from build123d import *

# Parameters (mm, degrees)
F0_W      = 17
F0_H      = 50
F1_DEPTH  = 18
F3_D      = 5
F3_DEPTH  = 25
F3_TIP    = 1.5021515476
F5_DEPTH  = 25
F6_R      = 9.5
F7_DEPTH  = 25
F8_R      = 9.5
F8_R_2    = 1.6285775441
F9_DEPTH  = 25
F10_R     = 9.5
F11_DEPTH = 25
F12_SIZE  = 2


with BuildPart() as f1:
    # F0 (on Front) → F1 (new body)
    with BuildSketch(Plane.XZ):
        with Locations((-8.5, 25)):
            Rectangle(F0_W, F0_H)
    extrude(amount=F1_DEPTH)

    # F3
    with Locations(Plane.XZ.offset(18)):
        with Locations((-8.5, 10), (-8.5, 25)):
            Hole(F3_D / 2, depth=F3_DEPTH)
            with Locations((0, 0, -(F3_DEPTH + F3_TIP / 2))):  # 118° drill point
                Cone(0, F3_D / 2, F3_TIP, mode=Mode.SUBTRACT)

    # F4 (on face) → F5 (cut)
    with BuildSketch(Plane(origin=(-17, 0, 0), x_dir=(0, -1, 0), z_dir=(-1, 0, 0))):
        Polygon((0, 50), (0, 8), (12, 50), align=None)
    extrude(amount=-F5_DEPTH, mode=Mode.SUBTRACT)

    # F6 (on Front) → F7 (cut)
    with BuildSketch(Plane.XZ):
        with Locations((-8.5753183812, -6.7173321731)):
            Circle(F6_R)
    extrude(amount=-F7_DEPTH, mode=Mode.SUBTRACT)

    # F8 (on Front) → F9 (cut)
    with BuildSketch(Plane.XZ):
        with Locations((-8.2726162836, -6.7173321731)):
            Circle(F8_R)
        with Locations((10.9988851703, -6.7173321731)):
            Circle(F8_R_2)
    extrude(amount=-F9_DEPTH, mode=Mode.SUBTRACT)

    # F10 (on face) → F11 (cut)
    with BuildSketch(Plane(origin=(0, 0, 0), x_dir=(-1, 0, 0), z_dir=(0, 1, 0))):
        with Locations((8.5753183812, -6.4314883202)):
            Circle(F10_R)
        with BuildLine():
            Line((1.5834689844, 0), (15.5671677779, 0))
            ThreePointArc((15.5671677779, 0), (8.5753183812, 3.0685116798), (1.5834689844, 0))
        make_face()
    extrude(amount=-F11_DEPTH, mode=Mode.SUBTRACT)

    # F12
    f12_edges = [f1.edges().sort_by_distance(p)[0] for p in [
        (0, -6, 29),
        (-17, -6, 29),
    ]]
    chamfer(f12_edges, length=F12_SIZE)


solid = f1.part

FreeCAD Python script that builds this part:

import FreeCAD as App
import Part
import Sketcher

V = App.Vector
Q = App.Units.Quantity


def edges_at(feature, points):
    """Names of the edges that pass closest to the given points."""
    edges = feature.Shape.Edges
    near = lambda p: min(range(len(edges)), key=lambda i: edges[i].distToShape(Part.Vertex(*p))[0])
    return sorted({f"Edge{near(p) + 1}" for p in points})

doc = App.newDocument("Part")
body = doc.addObject("PartDesign::Body", "Body")

sketch1 = doc.addObject("Sketcher::SketchObject", "Sketch")
body.addObject(sketch1)
sketch1.AttachmentSupport = (doc.XZ_Plane, [""])
sketch1.MapMode = "FlatFace"
sketch1.addGeometry(Part.LineSegment(V(-17, 50, 0), V(-17, 0, 0)), False)
sketch1.addGeometry(Part.LineSegment(V(-17, 0, 0), V(0, 0, 0)), False)
sketch1.addGeometry(Part.LineSegment(V(0, 0, 0), V(0, 50, 0)), False)
sketch1.addGeometry(Part.LineSegment(V(0, 50, 0), V(-17, 50, 0)), False)
sketch1.addConstraint(Sketcher.Constraint("Coincident", 0, 2, 1, 1))
sketch1.addConstraint(Sketcher.Constraint("Coincident", 1, 2, 2, 1))
sketch1.addConstraint(Sketcher.Constraint("Coincident", 2, 2, 3, 1))
sketch1.addConstraint(Sketcher.Constraint("Coincident", 3, 2, 0, 1))
sketch1.addConstraint(Sketcher.Constraint("Vertical", 0))
sketch1.addConstraint(Sketcher.Constraint("Horizontal", 1))
sketch1.addConstraint(Sketcher.Constraint("Vertical", 2))
sketch1.addConstraint(Sketcher.Constraint("Horizontal", 3))
sketch1.addConstraint(Sketcher.Constraint("Coincident", 1, 2, -1, 1))
sketch1.addConstraint(Sketcher.Constraint("DistanceX", 1, 1, 1, 2, Q("17 mm")))
sketch1.addConstraint(Sketcher.Constraint("DistanceY", 0, 2, 0, 1, Q("50 mm")))
pad1 = doc.addObject("PartDesign::Pad", "Pad")
body.addObject(pad1)
pad1.Profile = sketch1
pad1.Length = 18

sketch2 = doc.addObject("Sketcher::SketchObject", "Sketch001")
body.addObject(sketch2)
sketch2.AttachmentSupport = (doc.XZ_Plane, [""])
sketch2.MapMode = "FlatFace"
sketch2.AttachmentOffset = App.Placement(V(0, 0, 18), App.Rotation())
sketch2.addGeometry(Part.Circle(V(-8.5, 10, 0), V(0, 0, 1), 2.5), False)
sketch2.addGeometry(Part.Circle(V(-8.5, 25, 0), V(0, 0, 1), 2.5), False)
sketch2.addConstraint(Sketcher.Constraint("Equal", 0, 1))
sketch2.addConstraint(Sketcher.Constraint("Vertical", 0, 3, 1, 3))
sketch2.addConstraint(Sketcher.Constraint("Diameter", 0, Q("5 mm")))
sketch2.addConstraint(Sketcher.Constraint("DistanceY", -1, 1, 0, 3, Q("10 mm")))
sketch2.addConstraint(Sketcher.Constraint("DistanceY", -1, 1, 1, 3, Q("25 mm")))
sketch2.addConstraint(Sketcher.Constraint("DistanceX", 0, 3, -1, 1, Q("8.5 mm")))
doc.recompute()
hole = doc.addObject("PartDesign::Hole", "Hole")
body.addObject(hole)
hole.Profile = sketch2
hole.ThreadType = "None"
hole.Diameter = 5
hole.DepthType = "Dimension"
hole.Depth = 25
hole.DrillPoint = "Angled"
hole.DrillPointAngle = 118

sketch3 = doc.addObject("Sketcher::SketchObject", "Sketch002")
body.addObject(sketch3)
sketch3.AttachmentSupport = (doc.YZ_Plane, [""])
sketch3.MapMode = "FlatFace"
sketch3.AttachmentOffset = App.Placement(V(0, 0, -17), App.Rotation())
sketch3.addGeometry(Part.LineSegment(V(0, 50, 0), V(0, 8, 0)), False)
sketch3.addGeometry(Part.LineSegment(V(0, 8, 0), V(-12, 50, 0)), False)
sketch3.addGeometry(Part.LineSegment(V(-12, 50, 0), V(0, 50, 0)), False)
sketch3.addConstraint(Sketcher.Constraint("Coincident", 0, 2, 1, 1))
sketch3.addConstraint(Sketcher.Constraint("Coincident", 1, 2, 2, 1))
sketch3.addConstraint(Sketcher.Constraint("Coincident", 2, 2, 0, 1))
sketch3.addConstraint(Sketcher.Constraint("Vertical", 0))
sketch3.addConstraint(Sketcher.Constraint("Horizontal", 2))
sketch3.addConstraint(Sketcher.Constraint("PointOnObject", 0, 2, -2))
sketch3.addConstraint(Sketcher.Constraint("DistanceX", 2, 1, 2, 2, Q("12 mm")))
sketch3.addConstraint(Sketcher.Constraint("DistanceY", 0, 2, 0, 1, Q("42 mm")))
sketch3.addConstraint(Sketcher.Constraint("DistanceY", -1, 1, 0, 2, Q("8 mm")))
pocket1 = doc.addObject("PartDesign::Pocket", "Pocket")
body.addObject(pocket1)
pocket1.Profile = sketch3
pocket1.Length = 25
pocket1.Reversed = True

sketch4 = doc.addObject("Sketcher::SketchObject", "Sketch003")
body.addObject(sketch4)
sketch4.AttachmentSupport = (doc.XZ_Plane, [""])
sketch4.MapMode = "FlatFace"
sketch4.addGeometry(Part.Circle(V(-9, -7, 0), V(0, 0, 1), 10), False)
sketch4.addConstraint(Sketcher.Constraint("Diameter", 0, Q("19 mm")))
sketch4.addConstraint(Sketcher.Constraint("DistanceX", 0, 3, -1, 1, Q("8.575318 mm")))
sketch4.addConstraint(Sketcher.Constraint("DistanceY", 0, 3, -1, 1, Q("6.717332 mm")))
pocket2 = doc.addObject("PartDesign::Pocket", "Pocket001")
body.addObject(pocket2)
pocket2.Profile = sketch4
pocket2.Length = 25

sketch5 = doc.addObject("Sketcher::SketchObject", "Sketch004")
body.addObject(sketch5)
sketch5.AttachmentSupport = (doc.XZ_Plane, [""])
sketch5.MapMode = "FlatFace"
sketch5.addGeometry(Part.Circle(V(-8.3, -6.7, 0), V(0, 0, 1), 9.5), False)
sketch5.addGeometry(Part.Circle(V(11, -6.7, 0), V(0, 0, 1), 1.6), False)
sketch5.addConstraint(Sketcher.Constraint("Horizontal", 0, 3, 1, 3))
sketch5.addConstraint(Sketcher.Constraint("Diameter", 0, Q("19 mm")))
sketch5.addConstraint(Sketcher.Constraint("Diameter", 1, Q("3.257155 mm")))
sketch5.addConstraint(Sketcher.Constraint("DistanceX", 0, 3, 1, 3, Q("19.271501 mm")))
sketch5.addConstraint(Sketcher.Constraint("DistanceX", 0, 3, -1, 1, Q("8.272616 mm")))
sketch5.addConstraint(Sketcher.Constraint("DistanceY", 0, 3, -1, 1, Q("6.717332 mm")))
pocket3 = doc.addObject("PartDesign::Pocket", "Pocket002")
body.addObject(pocket3)
pocket3.Profile = sketch5
pocket3.Length = 25

sketch6 = doc.addObject("Sketcher::SketchObject", "Sketch005")
body.addObject(sketch6)
sketch6.AttachmentSupport = (doc.XZ_Plane, [""])
sketch6.MapMode = "FlatFace"
sketch6.addGeometry(Part.Circle(V(-9, -6, 0), V(0, 0, 1), 10), False)
sketch6.addConstraint(Sketcher.Constraint("Diameter", 0, Q("19 mm")))
sketch6.addConstraint(Sketcher.Constraint("DistanceX", 0, 3, -1, 1, Q("8.575318 mm")))
sketch6.addConstraint(Sketcher.Constraint("DistanceY", 0, 3, -1, 1, Q("6.431488 mm")))
pocket4 = doc.addObject("PartDesign::Pocket", "Pocket003")
body.addObject(pocket4)
pocket4.Profile = sketch6
pocket4.Length = 25
pocket4.Reversed = True
doc.recompute()

chamfer = doc.addObject("PartDesign::Chamfer", "Chamfer")
body.addObject(chamfer)
chamfer.Base = (pocket4, edges_at(pocket4, [(0, -6, 29), (-17, -6, 29)]))
chamfer.Size = 2

doc.recompute()
